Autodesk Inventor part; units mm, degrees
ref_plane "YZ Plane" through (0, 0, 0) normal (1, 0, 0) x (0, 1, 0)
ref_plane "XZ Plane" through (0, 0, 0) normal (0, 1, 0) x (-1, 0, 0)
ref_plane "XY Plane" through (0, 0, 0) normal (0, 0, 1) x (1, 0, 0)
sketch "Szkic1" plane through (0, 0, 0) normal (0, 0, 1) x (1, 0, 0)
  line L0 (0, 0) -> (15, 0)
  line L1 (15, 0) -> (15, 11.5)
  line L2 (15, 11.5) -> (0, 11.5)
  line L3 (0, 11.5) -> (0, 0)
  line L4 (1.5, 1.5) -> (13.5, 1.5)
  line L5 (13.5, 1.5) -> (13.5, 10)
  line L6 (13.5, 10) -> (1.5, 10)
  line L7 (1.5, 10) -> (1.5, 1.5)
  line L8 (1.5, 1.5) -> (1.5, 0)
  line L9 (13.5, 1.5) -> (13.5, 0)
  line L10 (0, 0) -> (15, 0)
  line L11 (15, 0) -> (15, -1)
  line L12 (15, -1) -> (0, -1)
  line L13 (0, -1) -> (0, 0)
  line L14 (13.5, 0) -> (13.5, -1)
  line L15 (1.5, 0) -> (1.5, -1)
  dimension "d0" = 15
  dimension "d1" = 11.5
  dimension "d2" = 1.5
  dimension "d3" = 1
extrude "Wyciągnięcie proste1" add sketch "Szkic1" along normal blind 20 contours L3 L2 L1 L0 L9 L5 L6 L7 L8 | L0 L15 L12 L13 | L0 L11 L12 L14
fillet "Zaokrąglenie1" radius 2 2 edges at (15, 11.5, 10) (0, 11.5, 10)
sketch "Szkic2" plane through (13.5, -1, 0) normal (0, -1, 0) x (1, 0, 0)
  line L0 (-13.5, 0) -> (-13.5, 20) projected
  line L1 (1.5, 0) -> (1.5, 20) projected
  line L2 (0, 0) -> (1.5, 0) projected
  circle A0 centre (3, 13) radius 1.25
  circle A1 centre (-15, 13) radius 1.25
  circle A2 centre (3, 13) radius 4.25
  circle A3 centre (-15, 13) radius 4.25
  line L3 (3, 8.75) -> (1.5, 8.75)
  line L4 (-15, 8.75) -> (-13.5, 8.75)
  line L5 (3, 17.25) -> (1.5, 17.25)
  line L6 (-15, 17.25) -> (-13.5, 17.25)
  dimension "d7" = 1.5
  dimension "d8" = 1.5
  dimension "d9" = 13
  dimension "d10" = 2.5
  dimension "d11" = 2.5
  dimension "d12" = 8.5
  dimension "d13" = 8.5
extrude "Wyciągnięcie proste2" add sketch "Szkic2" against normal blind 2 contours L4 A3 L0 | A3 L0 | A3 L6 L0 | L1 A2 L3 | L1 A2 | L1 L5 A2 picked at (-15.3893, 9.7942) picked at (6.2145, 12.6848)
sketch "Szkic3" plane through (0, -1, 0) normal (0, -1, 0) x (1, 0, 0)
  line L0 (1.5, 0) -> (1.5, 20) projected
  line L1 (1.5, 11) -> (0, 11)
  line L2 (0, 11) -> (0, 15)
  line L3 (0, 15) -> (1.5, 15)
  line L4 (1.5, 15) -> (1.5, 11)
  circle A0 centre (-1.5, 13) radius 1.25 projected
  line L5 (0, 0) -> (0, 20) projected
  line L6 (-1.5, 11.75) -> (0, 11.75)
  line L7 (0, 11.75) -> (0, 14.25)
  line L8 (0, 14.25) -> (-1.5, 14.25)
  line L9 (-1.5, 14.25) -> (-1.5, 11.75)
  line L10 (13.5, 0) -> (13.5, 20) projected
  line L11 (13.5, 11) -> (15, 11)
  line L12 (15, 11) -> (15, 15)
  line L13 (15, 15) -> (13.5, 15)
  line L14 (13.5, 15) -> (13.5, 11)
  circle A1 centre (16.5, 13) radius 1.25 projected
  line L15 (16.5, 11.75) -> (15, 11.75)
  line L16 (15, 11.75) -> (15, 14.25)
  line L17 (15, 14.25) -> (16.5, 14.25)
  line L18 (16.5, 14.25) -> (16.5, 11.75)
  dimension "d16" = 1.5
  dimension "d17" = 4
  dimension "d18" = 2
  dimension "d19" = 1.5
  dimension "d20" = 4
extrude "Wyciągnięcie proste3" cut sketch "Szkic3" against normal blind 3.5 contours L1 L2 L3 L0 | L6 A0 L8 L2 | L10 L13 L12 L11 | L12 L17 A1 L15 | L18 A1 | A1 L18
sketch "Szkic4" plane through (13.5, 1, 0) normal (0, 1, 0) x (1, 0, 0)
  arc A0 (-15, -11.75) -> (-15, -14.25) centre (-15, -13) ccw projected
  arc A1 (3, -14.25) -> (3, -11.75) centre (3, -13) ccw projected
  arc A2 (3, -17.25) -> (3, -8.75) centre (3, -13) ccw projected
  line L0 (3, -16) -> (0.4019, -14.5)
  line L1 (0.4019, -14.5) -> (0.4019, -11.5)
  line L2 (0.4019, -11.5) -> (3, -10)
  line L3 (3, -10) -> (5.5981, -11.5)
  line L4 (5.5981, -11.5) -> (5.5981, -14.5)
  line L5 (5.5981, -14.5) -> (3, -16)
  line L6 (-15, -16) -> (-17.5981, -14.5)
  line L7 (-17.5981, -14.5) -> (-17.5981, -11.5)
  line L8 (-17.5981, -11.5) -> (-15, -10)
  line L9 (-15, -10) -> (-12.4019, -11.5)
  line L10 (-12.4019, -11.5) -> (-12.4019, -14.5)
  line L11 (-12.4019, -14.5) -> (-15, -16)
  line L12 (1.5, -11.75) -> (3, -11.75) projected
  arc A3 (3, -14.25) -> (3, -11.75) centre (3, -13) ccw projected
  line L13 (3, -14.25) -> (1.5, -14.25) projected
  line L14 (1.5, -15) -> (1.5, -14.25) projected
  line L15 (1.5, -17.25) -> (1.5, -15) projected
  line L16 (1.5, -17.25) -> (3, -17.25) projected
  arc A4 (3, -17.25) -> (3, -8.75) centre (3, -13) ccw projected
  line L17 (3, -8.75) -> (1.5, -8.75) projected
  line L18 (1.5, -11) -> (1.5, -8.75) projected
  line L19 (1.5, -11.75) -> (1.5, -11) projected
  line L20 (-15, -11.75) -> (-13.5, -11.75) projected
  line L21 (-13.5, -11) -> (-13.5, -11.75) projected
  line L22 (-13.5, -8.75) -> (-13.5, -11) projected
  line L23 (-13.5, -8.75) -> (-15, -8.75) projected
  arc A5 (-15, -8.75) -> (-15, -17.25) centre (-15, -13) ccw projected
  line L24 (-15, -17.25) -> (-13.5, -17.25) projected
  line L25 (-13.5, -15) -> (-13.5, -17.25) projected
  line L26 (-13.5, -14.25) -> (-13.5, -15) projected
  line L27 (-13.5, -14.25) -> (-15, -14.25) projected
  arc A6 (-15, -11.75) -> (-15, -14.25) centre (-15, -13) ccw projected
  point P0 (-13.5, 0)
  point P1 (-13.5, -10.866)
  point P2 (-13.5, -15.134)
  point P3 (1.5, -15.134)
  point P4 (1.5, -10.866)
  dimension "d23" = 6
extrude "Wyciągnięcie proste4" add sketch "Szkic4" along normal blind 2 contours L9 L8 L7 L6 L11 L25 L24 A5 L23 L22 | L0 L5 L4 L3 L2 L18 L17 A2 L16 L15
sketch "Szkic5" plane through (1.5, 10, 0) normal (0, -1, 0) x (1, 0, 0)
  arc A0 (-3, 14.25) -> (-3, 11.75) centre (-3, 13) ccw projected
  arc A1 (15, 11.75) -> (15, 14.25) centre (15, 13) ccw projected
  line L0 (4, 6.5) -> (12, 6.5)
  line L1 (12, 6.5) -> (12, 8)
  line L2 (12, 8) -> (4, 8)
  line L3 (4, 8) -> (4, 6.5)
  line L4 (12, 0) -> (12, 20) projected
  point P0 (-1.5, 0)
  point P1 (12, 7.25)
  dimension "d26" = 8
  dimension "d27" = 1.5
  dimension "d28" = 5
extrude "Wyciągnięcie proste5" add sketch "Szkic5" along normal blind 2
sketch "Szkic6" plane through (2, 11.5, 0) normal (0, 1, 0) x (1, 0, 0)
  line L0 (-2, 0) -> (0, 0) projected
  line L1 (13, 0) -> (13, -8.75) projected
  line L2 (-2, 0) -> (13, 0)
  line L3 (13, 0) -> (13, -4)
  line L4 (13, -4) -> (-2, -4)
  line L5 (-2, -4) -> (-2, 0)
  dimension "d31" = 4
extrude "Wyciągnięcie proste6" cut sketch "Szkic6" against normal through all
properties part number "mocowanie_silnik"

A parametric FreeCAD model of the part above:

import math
import FreeCAD as App
import Part
import Sketcher

V = App.Vector
Q = App.Units.Quantity


def edges_at(feature, points):
    """Names of the edges that pass closest to the given points."""
    edges = feature.Shape.Edges
    near = lambda p: min(range(len(edges)), key=lambda i: edges[i].distToShape(Part.Vertex(*p))[0])
    return sorted({f"Edge{near(p) + 1}" for p in points})


def add_polygon(sketch, points):
    """Adds a closed chain of lines whose ends are joined by coincident constraints."""
    first, n = sketch.GeometryCount, len(points)
    for a, b in zip(points, points[1:] + points[:1]):
        sketch.addGeometry(Part.LineSegment(App.Vector(*a, 0), App.Vector(*b, 0)), False)
    for i in range(n):
        sketch.addConstraint(Sketcher.Constraint("Coincident", first + i, 2, first + (i + 1) % n, 1))

doc = App.newDocument("Part")
body = doc.addObject("PartDesign::Body", "Body")

# Sketch on XY plane
sketch1 = body.newObject("Sketcher::SketchObject", "Sketch")
sketch1.AttachmentSupport = (doc.getObject("XY_Plane"), [""])
sketch1.MapMode = "FlatFace"
add_polygon(sketch1, [(0, 11.5), (0, -1), (1.5, -1), (1.5, 10), (13.5, 10), (13.5, -1), (15, -1), (15, 11.5)])  # lines 0-7
sketch1.addConstraint(Sketcher.Constraint("Vertical", 0))
sketch1.addConstraint(Sketcher.Constraint("Horizontal", 1))
sketch1.addConstraint(Sketcher.Constraint("Vertical", 2))
sketch1.addConstraint(Sketcher.Constraint("Horizontal", 3))
sketch1.addConstraint(Sketcher.Constraint("Vertical", 4))
sketch1.addConstraint(Sketcher.Constraint("Horizontal", 5))
sketch1.addConstraint(Sketcher.Constraint("Vertical", 6))
sketch1.addConstraint(Sketcher.Constraint("Horizontal", 7))
sketch1.addConstraint(Sketcher.Constraint("PointOnObject", 0, 2, -2))
sketch1.addConstraint(Sketcher.Constraint("Horizontal", 1, 2, 4, 2))
sketch1.addConstraint(Sketcher.Constraint("Equal", 1, 5))
sketch1.addConstraint(Sketcher.Constraint("DistanceX", 7, 2, 7, 1, Q("15 mm")))
sketch1.addConstraint(Sketcher.Constraint("DistanceX", 1, 1, 1, 2, Q("1.5 mm")))
sketch1.addConstraint(Sketcher.Constraint("DistanceY", 0, 2, -1, 1, Q("1 mm")))
sketch1.addConstraint(Sketcher.Constraint("DistanceY", -1, 1, 6, 2, Q("11.5 mm")))
sketch1.addConstraint(Sketcher.Constraint("DistanceY", 3, 2, 6, 2, Q("1.5 mm")))
pad1 = body.newObject("PartDesign::Pad", "Pad")
pad1.Profile = sketch1
pad1.Length = 20
doc.recompute()

fillet = body.newObject("PartDesign::Fillet", "Fillet")
fillet.Base = (pad1, edges_at(pad1, [(15, 11.5, 10), (0, 11.5, 10)]))
fillet.Radius = 2

# Sketch on XZ plane
sketch2 = body.newObject("Sketcher::SketchObject", "Sketch001")
sketch2.AttachmentSupport = (doc.getObject("XZ_Plane"), [""])
sketch2.MapMode = "FlatFace"
sketch2.AttachmentOffset = App.Placement(V(0, 0, 1), App.Rotation())
sketch2.addGeometry(Part.LineSegment(V(-1.5, 8.75, 0), V(0, 8.75, 0)), False)
sketch2.addGeometry(Part.LineSegment(V(0, 8.75, 0), V(0, 17.25, 0)), False)
sketch2.addGeometry(Part.LineSegment(V(0, 17.25, 0), V(-1.5, 17.25, 0)), False)
sketch2.addGeometry(Part.ArcOfCircle(Part.Circle(V(-1.5, 13, 0), V(0, 0, 1), 4.25), math.radians(90), math.radians(270)), False)
sketch2.addGeometry(Part.Circle(V(-1.5, 13, 0), V(0, 0, 1), 1.25), False)
sketch2.addGeometry(Part.LineSegment(V(15, 8.75, 0), V(16.5, 8.75, 0)), False)
sketch2.addGeometry(Part.ArcOfCircle(Part.Circle(V(16.5, 13, 0), V(0, 0, 1), 4.25), math.radians(-90), math.radians(90)), False)
sketch2.addGeometry(Part.LineSegment(V(16.5, 17.25, 0), V(15, 17.25, 0)), False)
sketch2.addGeometry(Part.LineSegment(V(15, 17.25, 0), V(15, 8.75, 0)), False)
sketch2.addGeometry(Part.Circle(V(16.5, 13, 0), V(0, 0, 1), 1.25), False)
sketch2.addConstraint(Sketcher.Constraint("Coincident", 0, 2, 1, 1))
sketch2.addConstraint(Sketcher.Constraint("Coincident", 1, 2, 2, 1))
sketch2.addConstraint(Sketcher.Constraint("Tangent", 2, 2, 3, 1))
sketch2.addConstraint(Sketcher.Constraint("Tangent", 3, 2, 0, 1))
sketch2.addConstraint(Sketcher.Constraint("Tangent", 5, 2, 6, 1))
sketch2.addConstraint(Sketcher.Constraint("Tangent", 6, 2, 7, 1))
sketch2.addConstraint(Sketcher.Constraint("Coincident", 7, 2, 8, 1))
sketch2.addConstraint(Sketcher.Constraint("Coincident", 8, 2, 5, 1))
sketch2.addConstraint(Sketcher.Constraint("Horizontal", 0))
sketch2.addConstraint(Sketcher.Constraint("Vertical", 1))
sketch2.addConstraint(Sketcher.Constraint("Horizontal", 2))
sketch2.addConstraint(Sketcher.Constraint("Horizontal", 5))
sketch2.addConstraint(Sketcher.Constraint("Horizontal", 7))
sketch2.addConstraint(Sketcher.Constraint("Vertical", 8))
sketch2.addConstraint(Sketcher.Constraint("Coincident", 4, 3, 3, 3))
sketch2.addConstraint(Sketcher.Constraint("Coincident", 9, 3, 6, 3))
sketch2.addConstraint(Sketcher.Constraint("Equal", 3, 6))
sketch2.addConstraint(Sketcher.Constraint("Equal", 4, 9))
sketch2.addConstraint(Sketcher.Constraint("PointOnObject", 0, 2, -2))
sketch2.addConstraint(Sketcher.Constraint("Horizontal", 4, 3, 6, 3))
sketch2.addConstraint(Sketcher.Constraint("Equal", 2, 5))
sketch2.addConstraint(Sketcher.Constraint("Diameter", 4, Q("2.5 mm")))
sketch2.addConstraint(Sketcher.Constraint("Radius", 3, Q("4.25 mm")))
sketch2.addConstraint(Sketcher.Constraint("DistanceX", 0, 1, 0, 2, Q("1.5 mm")))
sketch2.addConstraint(Sketcher.Constraint("DistanceY", -1, 1, 3, 3, Q("13 mm")))
sketch2.addConstraint(Sketcher.Constraint("DistanceX", -1, 1, 7, 2, Q("15 mm")))
pad2 = body.newObject("PartDesign::Pad", "Pad001")
pad2.Profile = sketch2
pad2.Length = 2
pad2.Reversed = True

# Sketch on XZ plane
sketch3 = body.newObject("Sketcher::SketchObject", "Sketch002")
sketch3.AttachmentSupport = (doc.getObject("XZ_Plane"), [""])
sketch3.MapMode = "FlatFace"
sketch3.AttachmentOffset = App.Placement(V(0, 0, 1), App.Rotation())
sketch3.addGeometry(Part.LineSegment(V(0, 11, 0), V(1.5, 11, 0)), False)
sketch3.addGeometry(Part.LineSegment(V(1.5, 11, 0), V(1.5, 15, 0)), False)
sketch3.addGeometry(Part.LineSegment(V(1.5, 15, 0), V(0, 15, 0)), False)
sketch3.addGeometry(Part.LineSegment(V(0, 15, 0), V(0, 14.25, 0)), False)
sketch3.addGeometry(Part.LineSegment(V(0, 14.25, 0), V(-1.5, 14.25, 0)), False)
sketch3.addGeometry(Part.ArcOfCircle(Part.Circle(V(-1.5, 13, 0), V(0, 0, 1), 1.25), math.radians(-90), math.radians(90)), False)
sketch3.addGeometry(Part.LineSegment(V(-1.5, 11.75, 0), V(0, 11.75, 0)), False)
sketch3.addGeometry(Part.LineSegment(V(0, 11.75, 0), V(0, 11, 0)), False)
sketch3.addGeometry(Part.LineSegment(V(13.5, 15, 0), V(13.5, 11, 0)), False)
sketch3.addGeometry(Part.LineSegment(V(13.5, 11, 0), V(15, 11, 0)), False)
sketch3.addGeometry(Part.LineSegment(V(15, 11, 0), V(15, 11.75, 0)), False)
sketch3.addGeometry(Part.LineSegment(V(15, 11.75, 0), V(16.5, 11.75, 0)), False)
sketch3.addGeometry(Part.ArcOfCircle(Part.Circle(V(16.5, 13, 0), V(0, 0, 1), 1.25), math.radians(-90), math.radians(90)), False)
sketch3.addGeometry(Part.LineSegment(V(16.5, 14.25, 0), V(15, 14.25, 0)), False)
sketch3.addGeometry(Part.LineSegment(V(15, 14.25, 0), V(15, 15, 0)), False)
sketch3.addGeometry(Part.LineSegment(V(15, 15, 0), V(13.5, 15, 0)), False)
sketch3.addConstraint(Sketcher.Constraint("Coincident", 0, 2, 1, 1))
sketch3.addConstraint(Sketcher.Constraint("Coincident", 1, 2, 2, 1))
sketch3.addConstraint(Sketcher.Constraint("Coincident", 2, 2, 3, 1))
sketch3.addConstraint(Sketcher.Constraint("Coincident", 3, 2, 4, 1))
sketch3.addConstraint(Sketcher.Constraint("Tangent", 4, 2, 5, 2))
sketch3.addConstraint(Sketcher.Constraint("Tangent", 5, 1, 6, 1))
sketch3.addConstraint(Sketcher.Constraint("Coincident", 6, 2, 7, 1))
sketch3.addConstraint(Sketcher.Constraint("Coincident", 7, 2, 0, 1))
sketch3.addConstraint(Sketcher.Constraint("Coincident", 8, 2, 9, 1))
sketch3.addConstraint(Sketcher.Constraint("Coincident", 9, 2, 10, 1))
sketch3.addConstraint(Sketcher.Constraint("Coincident", 10, 2, 11, 1))
sketch3.addConstraint(Sketcher.Constraint("Tangent", 11, 2, 12, 1))
sketch3.addConstraint(Sketcher.Constraint("Tangent", 12, 2, 13, 1))
sketch3.addConstraint(Sketcher.Constraint("Coincident", 13, 2, 14, 1))
sketch3.addConstraint(Sketcher.Constraint("Coincident", 14, 2, 15, 1))
sketch3.addConstraint(Sketcher.Constraint("Coincident", 15, 2, 8, 1))
sketch3.addConstraint(Sketcher.Constraint("Horizontal", 0))
sketch3.addConstraint(Sketcher.Constraint("Vertical", 1))
sketch3.addConstraint(Sketcher.Constraint("Horizontal", 2))
sketch3.addConstraint(Sketcher.Constraint("Vertical", 3))
sketch3.addConstraint(Sketcher.Constraint("Horizontal", 4))
sketch3.addConstraint(Sketcher.Constraint("Horizontal", 6))
sketch3.addConstraint(Sketcher.Constraint("Vertical", 7))
sketch3.addConstraint(Sketcher.Constraint("Vertical", 8))
sketch3.addConstraint(Sketcher.Constraint("Horizontal", 9))
sketch3.addConstraint(Sketcher.Constraint("Vertical", 10))
sketch3.addConstraint(Sketcher.Constraint("Horizontal", 11))
sketch3.addConstraint(Sketcher.Constraint("Horizontal", 13))
sketch3.addConstraint(Sketcher.Constraint("Vertical", 14))
sketch3.addConstraint(Sketcher.Constraint("Horizontal", 15))
sketch3.addConstraint(Sketcher.Constraint("Equal", 5, 12))
sketch3.addConstraint(Sketcher.Constraint("PointOnObject", 2, 2, -2))
sketch3.addConstraint(Sketcher.Constraint("PointOnObject", 6, 2, -2))
sketch3.addConstraint(Sketcher.Constraint("Horizontal", 5, 3, 12, 3))
sketch3.addConstraint(Sketcher.Constraint("Horizontal", 7, 2, 8, 2))
sketch3.addConstraint(Sketcher.Constraint("Horizontal", 2, 2, 14, 2))
sketch3.addConstraint(Sketcher.Constraint("Vertical", 10, 2, 13, 2))
sketch3.addConstraint(Sketcher.Constraint("Equal", 2, 4))
sketch3.addConstraint(Sketcher.Constraint("Equal", 6, 9))
sketch3.addConstraint(Sketcher.Constraint("Equal", 9, 11))
sketch3.addConstraint(Sketcher.Constraint("Equal", 3, 7))
sketch3.addConstraint(Sketcher.Constraint("DistanceY", 1, 1, 1, 2, Q("4 mm")))
sketch3.addConstraint(Sketcher.Constraint("DistanceX", 0, 1, 0, 2, Q("1.5 mm")))
sketch3.addConstraint(Sketcher.Constraint("Radius", 5, Q("1.25 mm")))
sketch3.addConstraint(Sketcher.Constraint("DistanceY", -1, 1, 5, 3, Q("13 mm")))
sketch3.addConstraint(Sketcher.Constraint("DistanceX", -1, 1, 9, 2, Q("15 mm")))
pocket1 = body.newObject("PartDesign::Pocket", "Pocket")
pocket1.Profile = sketch3
pocket1.Length = 3.5

# Sketch on XZ plane
sketch4 = body.newObject("Sketcher::SketchObject", "Sketch003")
sketch4.AttachmentSupport = (doc.getObject("XZ_Plane"), [""])
sketch4.MapMode = "FlatFace"
sketch4.AttachmentOffset = App.Placement(V(0, 0, -1), App.Rotation())
sketch4.addGeometry(Part.LineSegment(V(-1.5, 10, 0), V(0, 10.866017, 0)), False)
sketch4.addGeometry(Part.LineSegment(V(0, 10.866017, 0), V(0, 8.75, 0)), False)
sketch4.addGeometry(Part.LineSegment(V(0, 8.75, 0), V(-1.5, 8.75, 0)), False)
sketch4.addGeometry(Part.ArcOfCircle(Part.Circle(V(-1.5, 13, 0), V(0, 0, 1), 4.25), math.radians(90), math.radians(270)), False)
sketch4.addGeometry(Part.LineSegment(V(-1.5, 17.25, 0), V(0, 17.25, 0)), False)
sketch4.addGeometry(Part.LineSegment(V(0, 17.25, 0), V(0, 15.133983, 0)), False)
sketch4.addGeometry(Part.LineSegment(V(0, 15.133983, 0), V(-1.5, 16, 0)), False)
sketch4.addGeometry(Part.LineSegment(V(-1.5, 16, 0), V(-4.0981, 14.5, 0)), False)
sketch4.addGeometry(Part.LineSegment(V(-4.0981, 14.5, 0), V(-4.0981, 11.5, 0)), False)
sketch4.addGeometry(Part.LineSegment(V(-4.0981, 11.5, 0), V(-1.5, 10, 0)), False)
sketch4.addGeometry(Part.LineSegment(V(16.5, 16, 0), V(15, 15.133983, 0)), False)
sketch4.addGeometry(Part.LineSegment(V(15, 15.133983, 0), V(15, 17.25, 0)), False)
sketch4.addGeometry(Part.LineSegment(V(15, 17.25, 0), V(16.5, 17.25, 0)), False)
sketch4.addGeometry(Part.ArcOfCircle(Part.Circle(V(16.5, 13, 0), V(0, 0, 1), 4.25), math.radians(-90), math.radians(90)), False)
sketch4.addGeometry(Part.LineSegment(V(16.5, 8.75, 0), V(15, 8.75, 0)), False)
sketch4.addGeometry(Part.LineSegment(V(15, 8.75, 0), V(15, 10.866017, 0)), False)
sketch4.addGeometry(Part.LineSegment(V(15, 10.866017, 0), V(16.5, 10, 0)), False)
sketch4.addGeometry(Part.LineSegment(V(16.5, 10, 0), V(19.0981, 11.5, 0)), False)
sketch4.addGeometry(Part.LineSegment(V(19.0981, 11.5, 0), V(19.0981, 14.5, 0)), False)
sketch4.addGeometry(Part.LineSegment(V(19.0981, 14.5, 0), V(16.5, 16, 0)), False)
sketch4.addConstraint(Sketcher.Constraint("Coincident", 0, 2, 1, 1))
sketch4.addConstraint(Sketcher.Constraint("Coincident", 1, 2, 2, 1))
sketch4.addConstraint(Sketcher.Constraint("Tangent", 2, 2, 3, 2))
sketch4.addConstraint(Sketcher.Constraint("Tangent", 3, 1, 4, 1))
sketch4.addConstraint(Sketcher.Constraint("Coincident", 4, 2, 5, 1))
sketch4.addConstraint(Sketcher.Constraint("Coincident", 5, 2, 6, 1))
sketch4.addConstraint(Sketcher.Constraint("Coincident", 6, 2, 7, 1))
sketch4.addConstraint(Sketcher.Constraint("Coincident", 7, 2, 8, 1))
sketch4.addConstraint(Sketcher.Constraint("Coincident", 8, 2, 9, 1))
sketch4.addConstraint(Sketcher.Constraint("Coincident", 9, 2, 0, 1))
sketch4.addConstraint(Sketcher.Constraint("Coincident", 10, 2, 11, 1))
sketch4.addConstraint(Sketcher.Constraint("Coincident", 11, 2, 12, 1))
sketch4.addConstraint(Sketcher.Constraint("Tangent", 12, 2, 13, 2))
sketch4.addConstraint(Sketcher.Constraint("Tangent", 13, 1, 14, 1))
sketch4.addConstraint(Sketcher.Constraint("Coincident", 14, 2, 15, 1))
sketch4.addConstraint(Sketcher.Constraint("Coincident", 15, 2, 16, 1))
sketch4.addConstraint(Sketcher.Constraint("Coincident", 16, 2, 17, 1))
sketch4.addConstraint(Sketcher.Constraint("Coincident", 17, 2, 18, 1))
sketch4.addConstraint(Sketcher.Constraint("Coincident", 18, 2, 19, 1))
sketch4.addConstraint(Sketcher.Constraint("Coincident", 19, 2, 10, 1))
sketch4.addConstraint(Sketcher.Constraint("Vertical", 1))
sketch4.addConstraint(Sketcher.Constraint("Horizontal", 2))
sketch4.addConstraint(Sketcher.Constraint("Horizontal", 4))
sketch4.addConstraint(Sketcher.Constraint("Vertical", 5))
sketch4.addConstraint(Sketcher.Constraint("Vertical", 8))
sketch4.addConstraint(Sketcher.Constraint("Vertical", 11))
sketch4.addConstraint(Sketcher.Constraint("Horizontal", 12))
sketch4.addConstraint(Sketcher.Constraint("Horizontal", 14))
sketch4.addConstraint(Sketcher.Constraint("Vertical", 15))
sketch4.addConstraint(Sketcher.Constraint("Vertical", 18))
sketch4.addConstraint(Sketcher.Constraint("Equal", 3, 13))
sketch4.addConstraint(Sketcher.Constraint("PointOnObject", 0, 2, -2))
sketch4.addConstraint(Sketcher.Constraint("PointOnObject", 4, 2, -2))
sketch4.addConstraint(Sketcher.Constraint("Parallel", 0, 7))
sketch4.addConstraint(Sketcher.Constraint("Parallel", 6, 9))
sketch4.addConstraint(Sketcher.Constraint("Parallel", 7, 10))
sketch4.addConstraint(Sketcher.Constraint("Parallel", 9, 16))
sketch4.addConstraint(Sketcher.Constraint("Parallel", 10, 17))
sketch4.addConstraint(Sketcher.Constraint("Parallel", 16, 19))
sketch4.addConstraint(Sketcher.Constraint("Horizontal", 3, 3, 13, 3))
sketch4.addConstraint(Sketcher.Constraint("Horizontal", 5, 2, 10, 2))
sketch4.addConstraint(Sketcher.Constraint("Horizontal", 0, 2, 15, 2))
sketch4.addConstraint(Sketcher.Constraint("Horizontal", 9, 2, 16, 2))
sketch4.addConstraint(Sketcher.Constraint("Horizontal", 8, 2, 17, 2))
sketch4.addConstraint(Sketcher.Constraint("Horizontal", 7, 2, 18, 2))
sketch4.addConstraint(Sketcher.Constraint("Horizontal", 6, 2, 19, 2))
sketch4.addConstraint(Sketcher.Constraint("Vertical", 3, 1, 6, 2))
sketch4.addConstraint(Sketcher.Constraint("Vertical", 6, 2, 9, 2))
sketch4.addConstraint(Sketcher.Constraint("Vertical", 11, 2, 14, 2))
sketch4.addConstraint(Sketcher.Constraint("Vertical", 13, 1, 16, 2))
sketch4.addConstraint(Sketcher.Constraint("Equal", 1, 5))
sketch4.addConstraint(Sketcher.Constraint("DistanceY", 8, 2, 8, 1, Q("3 mm")))
sketch4.addConstraint(Sketcher.Constraint("Angle", 0, Q("29.9998 deg")))
sketch4.addConstraint(Sketcher.Constraint("Radius", 3, Q("4.25 mm")))
sketch4.addConstraint(Sketcher.Constraint("Distance", 7, Q("3 mm")))
sketch4.addConstraint(Sketcher.Constraint("DistanceX", 2, 2, 2, 1, Q("1.5 mm")))
sketch4.addConstraint(Sketcher.Constraint("DistanceY", -1, 1, 3, 3, Q("13 mm")))
sketch4.addConstraint(Sketcher.Constraint("DistanceX", -1, 1, 10, 2, Q("15 mm")))
pad3 = body.newObject("PartDesign::Pad", "Pad002")
pad3.Profile = sketch4
pad3.Length = 2
pad3.Reversed = True

# Sketch on XZ plane
sketch5 = body.newObject("Sketcher::SketchObject", "Sketch004")
sketch5.AttachmentSupport = (doc.getObject("XZ_Plane"), [""])
sketch5.MapMode = "FlatFace"
sketch5.AttachmentOffset = App.Placement(V(0, 0, -10), App.Rotation())
add_polygon(sketch5, [(5.5, 8), (5.5, 6.5), (13.5, 6.5), (13.5, 8)])  # lines 0-3
sketch5.addConstraint(Sketcher.Constraint("Vertical", 0))
sketch5.addConstraint(Sketcher.Constraint("Horizontal", 1))
sketch5.addConstraint(Sketcher.Constraint("Vertical", 2))
sketch5.addConstraint(Sketcher.Constraint("Horizontal", 3))
sketch5.addConstraint(Sketcher.Constraint("DistanceX", 1, 1, 1, 2, Q("8 mm")))
sketch5.addConstraint(Sketcher.Constraint("DistanceY", 0, 2, 0, 1, Q("1.5 mm")))
sketch5.addConstraint(Sketcher.Constraint("DistanceY", -1, 1, 2, 2, Q("8 mm")))
sketch5.addConstraint(Sketcher.Constraint("DistanceX", -1, 1, 0, 2, Q("5.5 mm")))
pad4 = body.newObject("PartDesign::Pad", "Pad003")
pad4.Profile = sketch5
pad4.Length = 2

# Sketch on XZ plane
sketch6 = body.newObject("Sketcher::SketchObject", "Sketch005")
sketch6.AttachmentSupport = (doc.getObject("XZ_Plane"), [""])
sketch6.MapMode = "FlatFace"
sketch6.AttachmentOffset = App.Placement(V(0, 0, -11.5), App.Rotation())
add_polygon(sketch6, [(15, 0), (0, 0), (0, 4), (15, 4)])  # lines 0-3
sketch6.addConstraint(Sketcher.Constraint("Horizontal", 0))
sketch6.addConstraint(Sketcher.Constraint("Vertical", 1))
sketch6.addConstraint(Sketcher.Constraint("Horizontal", 2))
sketch6.addConstraint(Sketcher.Constraint("Vertical", 3))
sketch6.addConstraint(Sketcher.Constraint("Coincident", 0, 2, -1, 1))
sketch6.addConstraint(Sketcher.Constraint("DistanceY", 1, 1, 1, 2, Q("4 mm")))
sketch6.addConstraint(Sketcher.Constraint("DistanceX", 0, 2, 0, 1, Q("15 mm")))
pocket2 = body.newObject("PartDesign::Pocket", "Pocket001")
pocket2.Profile = sketch6
pocket2.Type = "ThroughAll"
pocket2.Reversed = True

doc.recompute()
